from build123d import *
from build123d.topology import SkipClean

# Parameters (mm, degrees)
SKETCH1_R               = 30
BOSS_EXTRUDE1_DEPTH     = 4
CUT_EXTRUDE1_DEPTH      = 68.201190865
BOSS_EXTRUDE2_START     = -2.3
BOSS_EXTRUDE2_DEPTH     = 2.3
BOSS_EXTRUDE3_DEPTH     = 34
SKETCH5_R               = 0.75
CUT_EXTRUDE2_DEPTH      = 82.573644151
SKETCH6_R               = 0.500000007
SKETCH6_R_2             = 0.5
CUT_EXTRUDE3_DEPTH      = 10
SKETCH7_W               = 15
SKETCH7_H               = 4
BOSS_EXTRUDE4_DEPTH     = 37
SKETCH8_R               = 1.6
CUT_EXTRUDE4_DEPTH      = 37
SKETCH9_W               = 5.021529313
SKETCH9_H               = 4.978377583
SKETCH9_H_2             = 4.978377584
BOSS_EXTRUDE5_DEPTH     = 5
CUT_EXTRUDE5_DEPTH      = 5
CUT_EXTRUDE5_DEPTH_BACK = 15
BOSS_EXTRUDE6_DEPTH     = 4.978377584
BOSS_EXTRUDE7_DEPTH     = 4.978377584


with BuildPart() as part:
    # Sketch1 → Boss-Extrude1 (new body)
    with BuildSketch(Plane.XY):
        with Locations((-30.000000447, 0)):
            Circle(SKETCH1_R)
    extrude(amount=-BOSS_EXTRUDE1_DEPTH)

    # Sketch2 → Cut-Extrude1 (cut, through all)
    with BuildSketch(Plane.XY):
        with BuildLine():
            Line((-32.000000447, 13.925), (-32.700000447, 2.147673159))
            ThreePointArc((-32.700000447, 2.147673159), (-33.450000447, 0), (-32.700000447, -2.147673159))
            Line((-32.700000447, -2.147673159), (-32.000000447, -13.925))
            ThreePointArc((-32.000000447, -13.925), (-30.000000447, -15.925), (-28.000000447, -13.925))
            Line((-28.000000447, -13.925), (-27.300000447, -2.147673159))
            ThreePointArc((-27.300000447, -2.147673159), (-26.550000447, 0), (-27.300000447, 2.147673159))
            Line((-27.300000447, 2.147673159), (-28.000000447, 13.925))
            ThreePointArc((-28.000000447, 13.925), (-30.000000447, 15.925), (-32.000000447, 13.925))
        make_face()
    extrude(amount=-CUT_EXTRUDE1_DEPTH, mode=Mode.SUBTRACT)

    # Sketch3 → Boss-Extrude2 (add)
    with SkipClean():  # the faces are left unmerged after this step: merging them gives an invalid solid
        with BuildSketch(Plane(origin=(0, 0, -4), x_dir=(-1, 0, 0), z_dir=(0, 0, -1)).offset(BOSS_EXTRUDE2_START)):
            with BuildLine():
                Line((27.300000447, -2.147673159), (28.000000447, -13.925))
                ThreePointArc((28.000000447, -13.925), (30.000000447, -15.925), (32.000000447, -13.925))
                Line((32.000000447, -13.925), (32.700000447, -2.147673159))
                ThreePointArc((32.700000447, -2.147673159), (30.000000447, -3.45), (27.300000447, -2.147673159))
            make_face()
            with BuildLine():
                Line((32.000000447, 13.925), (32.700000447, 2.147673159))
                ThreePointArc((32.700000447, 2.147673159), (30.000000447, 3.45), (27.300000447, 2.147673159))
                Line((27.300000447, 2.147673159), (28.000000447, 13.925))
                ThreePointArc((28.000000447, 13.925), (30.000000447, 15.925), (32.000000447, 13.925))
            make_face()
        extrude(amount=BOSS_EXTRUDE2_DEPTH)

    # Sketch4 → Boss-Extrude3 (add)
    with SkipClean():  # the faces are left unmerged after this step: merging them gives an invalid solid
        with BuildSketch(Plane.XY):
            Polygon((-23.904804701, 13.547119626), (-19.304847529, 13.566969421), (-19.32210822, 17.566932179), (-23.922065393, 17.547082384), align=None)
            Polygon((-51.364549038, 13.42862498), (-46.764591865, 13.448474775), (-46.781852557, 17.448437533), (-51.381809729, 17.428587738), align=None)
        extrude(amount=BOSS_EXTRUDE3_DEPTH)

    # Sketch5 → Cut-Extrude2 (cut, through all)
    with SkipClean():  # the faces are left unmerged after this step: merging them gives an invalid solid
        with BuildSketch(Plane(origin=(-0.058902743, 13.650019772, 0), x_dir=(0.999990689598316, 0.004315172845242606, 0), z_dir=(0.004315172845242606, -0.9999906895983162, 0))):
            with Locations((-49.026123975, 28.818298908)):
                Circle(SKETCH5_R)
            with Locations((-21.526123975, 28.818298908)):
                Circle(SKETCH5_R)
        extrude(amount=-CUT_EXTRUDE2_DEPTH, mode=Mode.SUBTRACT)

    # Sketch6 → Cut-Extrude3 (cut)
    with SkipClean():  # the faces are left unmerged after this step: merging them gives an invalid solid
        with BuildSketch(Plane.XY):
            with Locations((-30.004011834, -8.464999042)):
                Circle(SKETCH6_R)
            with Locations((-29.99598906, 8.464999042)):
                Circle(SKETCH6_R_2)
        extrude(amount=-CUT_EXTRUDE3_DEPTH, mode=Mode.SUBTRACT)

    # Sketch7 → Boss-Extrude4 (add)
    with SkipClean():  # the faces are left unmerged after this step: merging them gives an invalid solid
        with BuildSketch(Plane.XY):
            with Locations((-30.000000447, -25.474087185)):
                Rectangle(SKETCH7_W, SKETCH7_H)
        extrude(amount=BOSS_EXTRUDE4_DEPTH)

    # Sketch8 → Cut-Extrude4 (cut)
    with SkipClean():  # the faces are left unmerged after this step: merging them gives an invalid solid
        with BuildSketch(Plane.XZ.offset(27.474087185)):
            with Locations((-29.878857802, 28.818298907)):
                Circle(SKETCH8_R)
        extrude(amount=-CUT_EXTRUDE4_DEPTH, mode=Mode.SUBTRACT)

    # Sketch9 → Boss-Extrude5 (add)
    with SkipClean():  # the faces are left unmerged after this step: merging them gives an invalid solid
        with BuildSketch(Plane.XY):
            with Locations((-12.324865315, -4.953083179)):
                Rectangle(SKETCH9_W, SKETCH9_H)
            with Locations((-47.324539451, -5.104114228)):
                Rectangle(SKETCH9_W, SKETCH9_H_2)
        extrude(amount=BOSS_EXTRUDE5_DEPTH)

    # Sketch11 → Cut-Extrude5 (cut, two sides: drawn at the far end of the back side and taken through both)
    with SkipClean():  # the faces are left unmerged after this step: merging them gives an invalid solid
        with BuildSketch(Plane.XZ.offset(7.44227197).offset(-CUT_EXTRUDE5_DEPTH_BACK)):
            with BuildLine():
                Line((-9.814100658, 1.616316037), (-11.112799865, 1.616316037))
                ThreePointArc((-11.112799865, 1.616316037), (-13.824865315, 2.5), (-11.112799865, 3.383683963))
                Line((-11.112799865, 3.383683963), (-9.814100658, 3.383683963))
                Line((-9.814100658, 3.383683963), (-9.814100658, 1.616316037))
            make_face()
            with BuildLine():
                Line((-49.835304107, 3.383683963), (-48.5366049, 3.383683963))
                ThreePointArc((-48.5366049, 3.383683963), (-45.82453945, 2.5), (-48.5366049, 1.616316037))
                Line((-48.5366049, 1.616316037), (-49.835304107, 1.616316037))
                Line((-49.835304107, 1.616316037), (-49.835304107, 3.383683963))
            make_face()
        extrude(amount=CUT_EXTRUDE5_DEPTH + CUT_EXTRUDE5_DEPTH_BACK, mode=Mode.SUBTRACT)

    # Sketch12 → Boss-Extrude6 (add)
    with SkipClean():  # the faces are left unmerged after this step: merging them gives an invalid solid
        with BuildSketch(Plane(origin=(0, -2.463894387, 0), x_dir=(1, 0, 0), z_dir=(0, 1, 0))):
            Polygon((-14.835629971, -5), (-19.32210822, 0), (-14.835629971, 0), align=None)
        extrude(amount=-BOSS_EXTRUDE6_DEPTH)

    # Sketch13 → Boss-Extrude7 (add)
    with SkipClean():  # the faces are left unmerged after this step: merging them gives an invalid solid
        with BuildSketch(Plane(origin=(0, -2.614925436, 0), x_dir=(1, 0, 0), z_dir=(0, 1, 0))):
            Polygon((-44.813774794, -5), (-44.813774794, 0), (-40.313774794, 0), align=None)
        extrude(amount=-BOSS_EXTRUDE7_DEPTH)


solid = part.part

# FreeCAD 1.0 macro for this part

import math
import FreeCAD as App
import Part
import Sketcher
from FreeCAD import Vector
Q = App.Units.Quantity


def add_polygon(sketch, points):
    """Adds a closed chain of lines whose ends are joined by coincident constraints."""
    first, n = sketch.GeometryCount, len(points)
    for a, b in zip(points, points[1:] + points[:1]):
        sketch.addGeometry(Part.LineSegment(App.Vector(*a, 0), App.Vector(*b, 0)), False)
    for i in range(n):
        sketch.addConstraint(Sketcher.Constraint("Coincident", first + i, 2, first + (i + 1) % n, 1))

doc = App.newDocument("Part")
body = doc.addObject("PartDesign::Body", "Body")

sketch1 = body.newObject("Sketcher::SketchObject", "Sketch")
sketch1.AttachmentSupport = (doc.getObject("XY_Plane"), [""])
sketch1.MapMode = "FlatFace"
sketch1.addGeometry(Part.Circle(Vector(-30, 0, 0), Vector(0, 0, 1), 30), False)
sketch1.addConstraint(Sketcher.Constraint("PointOnObject", 0, 3, -1))
sketch1.addConstraint(Sketcher.Constraint("Diameter", 0, Q("60 mm")))
sketch1.addConstraint(Sketcher.Constraint("DistanceX", 0, 3, -1, 1, Q("30 mm")))
pad1 = body.newObject("PartDesign::Pad", "Pad")
pad1.Profile = sketch1
pad1.Length = 4
pad1.Reversed = True

sketch2 = body.newObject("Sketcher::SketchObject", "Sketch001")
sketch2.AttachmentSupport = (doc.getObject("XY_Plane"), [""])
sketch2.MapMode = "FlatFace"
sketch2.addGeometry(Part.LineSegment(Vector(-32, 13.9, 0), Vector(-32.7, 2.1, 0)), False)
sketch2.addGeometry(Part.ArcOfCircle(Part.Circle(Vector(-30, 0, 0), Vector(0, 0, 1), 3.4), math.radians(142), math.radians(218)), False)
sketch2.addGeometry(Part.LineSegment(Vector(-32.7, -2.1, 0), Vector(-32, -13.9, 0)), False)
sketch2.addGeometry(Part.ArcOfCircle(Part.Circle(Vector(-30, -13.9, 0), Vector(0, 0, 1), 2), math.radians(180), math.radians(360)), False)
sketch2.addGeometry(Part.LineSegment(Vector(-28, -13.9, 0), Vector(-27.3, -2.1, 0)), False)
sketch2.addGeometry(Part.ArcOfCircle(Part.Circle(Vector(-30, 0, 0), Vector(0, 0, 1), 3.4), math.radians(-38), math.radians(38)), False)
sketch2.addGeometry(Part.LineSegment(Vector(-27.3, 2.1, 0), Vector(-28, 13.9, 0)), False)
sketch2.addGeometry(Part.ArcOfCircle(Part.Circle(Vector(-30, 13.9, 0), Vector(0, 0, 1), 2), math.radians(0), math.radians(180)), False)
sketch2.addConstraint(Sketcher.Constraint("Coincident", 0, 2, 1, 1))
sketch2.addConstraint(Sketcher.Constraint("Coincident", 1, 2, 2, 1))
sketch2.addConstraint(Sketcher.Constraint("Coincident", 2, 2, 3, 1))
sketch2.addConstraint(Sketcher.Constraint("Coincident", 3, 2, 4, 1))
sketch2.addConstraint(Sketcher.Constraint("Coincident", 4, 2, 5, 1))
sketch2.addConstraint(Sketcher.Constraint("Coincident", 5, 2, 6, 1))
sketch2.addConstraint(Sketcher.Constraint("Coincident", 6, 2, 7, 1))
sketch2.addConstraint(Sketcher.Constraint("Coincident", 7, 2, 0, 1))
sketch2.addConstraint(Sketcher.Constraint("Coincident", 5, 3, 1, 3))
sketch2.addConstraint(Sketcher.Constraint("Equal", 1, 5))
sketch2.addConstraint(Sketcher.Constraint("Equal", 3, 7))
sketch2.addConstraint(Sketcher.Constraint("Symmetric", 3, 3, 7, 3, -1))
sketch2.addConstraint(Sketcher.Constraint("Symmetric", 0, 2, 1, 2, -1))
sketch2.addConstraint(Sketcher.Constraint("Parallel", 0, 4))
sketch2.addConstraint(Sketcher.Constraint("Parallel", 2, 6))
sketch2.addConstraint(Sketcher.Constraint("Horizontal", 3, 3, 2, 2))
sketch2.addConstraint(Sketcher.Constraint("Horizontal", 2, 2, 3, 2))
sketch2.addConstraint(Sketcher.Constraint("Horizontal", 1, 2, 4, 2))
sketch2.addConstraint(Sketcher.Constraint("Horizontal", 0, 2, 5, 2))
sketch2.addConstraint(Sketcher.Constraint("Horizontal", 7, 3, 6, 2))
sketch2.addConstraint(Sketcher.Constraint("Radius", 3, Q("2 mm")))
sketch2.addConstraint(Sketcher.Constraint("Radius", 1, Q("3.45 mm")))
sketch2.addConstraint(Sketcher.Constraint("DistanceX", 1, 3, -1, 1, Q("30 mm")))
sketch2.addConstraint(Sketcher.Constraint("DistanceX", 0, 2, -1, 1, Q("32.7 mm")))
sketch2.addConstraint(Sketcher.Constraint("DistanceY", 3, 3, 7, 3, Q("27.85 mm")))
pocket1 = body.newObject("PartDesign::Pocket", "Pocket")
pocket1.Profile = sketch2
pocket1.Type = "ThroughAll"

sketch3 = body.newObject("Sketcher::SketchObject", "Sketch002")
sketch3.AttachmentSupport = (doc.getObject("XY_Plane"), [""])
sketch3.MapMode = "FlatFace"
sketch3.AttachmentOffset = App.Placement(Vector(0, 0, -1.7), App.Rotation())
sketch3.addGeometry(Part.LineSegment(Vector(-27.3, -2.1, 0), Vector(-28, -13.9, 0)), False)
sketch3.addGeometry(Part.ArcOfCircle(Part.Circle(Vector(-30, -13.9, 0), Vector(0, 0, 1), 2), math.radians(180), math.radians(360)), False)
sketch3.addGeometry(Part.LineSegment(Vector(-32, -13.9, 0), Vector(-32.7, -2.1, 0)), False)
sketch3.addGeometry(Part.ArcOfCircle(Part.Circle(Vector(-30, 0, 0), Vector(0, 0, 1), 3.4), math.radians(-142), math.radians(-38)), False)
sketch3.addGeometry(Part.LineSegment(Vector(-32.7, 2.1, 0), Vector(-32, 13.9, 0)), False)
sketch3.addGeometry(Part.ArcOfCircle(Part.Circle(Vector(-30, 13.9, 0), Vector(0, 0, 1), 2), math.radians(0), math.radians(180)), False)
sketch3.addGeometry(Part.LineSegment(Vector(-28, 13.9, 0), Vector(-27.3, 2.1, 0)), False)
sketch3.addGeometry(Part.ArcOfCircle(Part.Circle(Vector(-30, 0, 0), Vector(0, 0, 1), 3.4), math.radians(38), math.radians(142)), False)
sketch3.addConstraint(Sketcher.Constraint("Coincident", 0, 2, 1, 2))
sketch3.addConstraint(Sketcher.Constraint("Coincident", 1, 1, 2, 1))
sketch3.addConstraint(Sketcher.Constraint("Coincident", 2, 2, 3, 1))
sketch3.addConstraint(Sketcher.Constraint("Coincident", 3, 2, 0, 1))
sketch3.addConstraint(Sketcher.Constraint("Coincident", 4, 2, 5, 2))
sketch3.addConstraint(Sketcher.Constraint("Coincident", 5, 1, 6, 1))
sketch3.addConstraint(Sketcher.Constraint("Coincident", 6, 2, 7, 1))
sketch3.addConstraint(Sketcher.Constraint("Coincident", 7, 2, 4, 1))
sketch3.addConstraint(Sketcher.Constraint("Coincident", 7, 3, 3, 3))
sketch3.addConstraint(Sketcher.Constraint("Equal", 1, 5))
sketch3.addConstraint(Sketcher.Constraint("Equal", 3, 7))
sketch3.addConstraint(Sketcher.Constraint("Symmetric", 1, 3, 5, 3, -1))
sketch3.addConstraint(Sketcher.Constraint("Symmetric", 3, 2, 6, 2, -1))
sketch3.addConstraint(Sketcher.Constraint("Parallel", 0, 4))
sketch3.addConstraint(Sketcher.Constraint("Parallel", 2, 6))
sketch3.addConstraint(Sketcher.Constraint("Horizontal", 1, 3, 0, 2))
sketch3.addConstraint(Sketcher.Constraint("Horizontal", 0, 2, 1, 1))
sketch3.addConstraint(Sketcher.Constraint("Horizontal", 2, 2, 3, 2))
sketch3.addConstraint(Sketcher.Constraint("Horizontal", 5, 3, 4, 2))
sketch3.addConstraint(Sketcher.Constraint("Horizontal", 4, 2, 5, 1))
sketch3.addConstraint(Sketcher.Constraint("Radius", 1, Q("2 mm")))
sketch3.addConstraint(Sketcher.Constraint("Radius", 3, Q("3.45 mm")))
sketch3.addConstraint(Sketcher.Constraint("DistanceX", 1, 3, -1, 1, Q("30 mm")))
sketch3.addConstraint(Sketcher.Constraint("DistanceX", 2, 2, -1, 1, Q("32.7 mm")))
sketch3.addConstraint(Sketcher.Constraint("DistanceY", 1, 3, 5, 3, Q("27.85 mm")))
pad2 = body.newObject("PartDesign::Pad", "Pad001")
pad2.Profile = sketch3
pad2.Length = 2.3
pad2.Reversed = True

sketch4 = body.newObject("Sketcher::SketchObject", "Sketch003")
sketch4.AttachmentSupport = (doc.getObject("XY_Plane"), [""])
sketch4.MapMode = "FlatFace"
add_polygon(sketch4, [(-23.9, 13.5), (-19.3, 13.6), (-19.3, 17.6), (-23.9, 17.5)])
add_polygon(sketch4, [(-51.4, 13.4), (-46.8, 13.4), (-46.8, 17.4), (-51.4, 17.4)])
sketch4.addConstraint(Sketcher.Constraint("Perpendicular", 0, 1))
sketch4.addConstraint(Sketcher.Constraint("Perpendicular", 1, 2))
sketch4.addConstraint(Sketcher.Constraint("Perpendicular", 2, 3))
sketch4.addConstraint(Sketcher.Constraint("Perpendicular", 3, 4))
sketch4.addConstraint(Sketcher.Constraint("Perpendicular", 4, 5))
sketch4.addConstraint(Sketcher.Constraint("Perpendicular", 5, 6))
sketch4.addConstraint(Sketcher.Constraint("Perpendicular", 6, 7))
sketch4.addConstraint(Sketcher.Constraint("Equal", 2, 4))
sketch4.addConstraint(Sketcher.Constraint("Equal", 3, 5))
sketch4.addConstraint(Sketcher.Constraint("Distance", 1, Q("4 mm")))
sketch4.addConstraint(Sketcher.Constraint("Distance", 0, Q("4.6 mm")))
sketch4.addConstraint(Sketcher.Constraint("DistanceX", 6, 2, 1, 2, Q("32.059702 mm")))
sketch4.addConstraint(Sketcher.Constraint("DistanceY", -1, 1, 0, 2, Q("13.566969 mm")))
sketch4.addConstraint(Sketcher.Constraint("DistanceX", 1, 2, -1, 1, Q("19.322108 mm")))
sketch4.addConstraint(Sketcher.Constraint("DistanceY", -1, 1, 3, 2, Q("13.54712 mm")))
sketch4.addConstraint(Sketcher.Constraint("DistanceY", 0, 2, 5, 2, Q("3.881468 mm")))
pad3 = body.newObject("PartDesign::Pad", "Pad002")
pad3.Profile = sketch4
pad3.Length = 34

sketch5 = body.newObject("Sketcher::SketchObject", "Sketch004")
sketch5.Placement = App.Placement(Vector(-0.058903, 13.65002, 0), App.Rotation(Vector(0.99999069, 0.004315173, 0), Vector(0, 0, 1.000000001), Vector(0.004315173, -0.99999069, 0), "ZXY"))
sketch5.addGeometry(Part.Circle(Vector(-49, 28.8, 0), Vector(0, 0, 1), 0.8), False)
sketch5.addGeometry(Part.Circle(Vector(-21.5, 28.8, 0), Vector(0, 0, 1), 0.8), False)
sketch5.addConstraint(Sketcher.Constraint("Equal", 0, 1))
sketch5.addConstraint(Sketcher.Constraint("Horizontal", 0, 3, 1, 3))
sketch5.addConstraint(Sketcher.Constraint("Diameter", 0, Q("1.5 mm")))
sketch5.addConstraint(Sketcher.Constraint("DistanceX", 0, 3, 1, 3, Q("27.5 mm")))
sketch5.addConstraint(Sketcher.Constraint("DistanceY", -1, 1, 0, 3, Q("28.818299 mm")))
sketch5.addConstraint(Sketcher.Constraint("DistanceX", 0, 3, -1, 1, Q("49.026124 mm")))
pocket2 = body.newObject("PartDesign::Pocket", "Pocket001")
pocket2.Profile = sketch5
pocket2.Type = "ThroughAll"

sketch6 = body.newObject("Sketcher::SketchObject", "Sketch005")
sketch6.AttachmentSupport = (doc.getObject("XY_Plane"), [""])
sketch6.MapMode = "FlatFace"
sketch6.addGeometry(Part.Circle(Vector(-30, -8.5, 0), Vector(0, 0, 1), 0.5), False)
sketch6.addGeometry(Part.Circle(Vector(-30, 8.5, 0), Vector(0, 0, 1), 0.5), False)
sketch6.addConstraint(Sketcher.Constraint("Equal", 0, 1))
sketch6.addConstraint(Sketcher.Constraint("Diameter", 0, Q("1 mm")))
sketch6.addConstraint(Sketcher.Constraint("DistanceY", 0, 3, 1, 3, Q("16.929998 mm")))
sketch6.addConstraint(Sketcher.Constraint("DistanceY", 0, 3, -1, 1, Q("8.464999 mm")))
sketch6.addConstraint(Sketcher.Constraint("DistanceX", 0, 3, -1, 1, Q("30.004012 mm")))
sketch6.addConstraint(Sketcher.Constraint("DistanceX", 1, 3, -1, 1, Q("29.995989 mm")))
pocket3 = body.newObject("PartDesign::Pocket", "Pocket002")
pocket3.Profile = sketch6
pocket3.Length = 10

sketch7 = body.newObject("Sketcher::SketchObject", "Sketch006")
sketch7.AttachmentSupport = (doc.getObject("XY_Plane"), [""])
sketch7.MapMode = "FlatFace"
add_polygon(sketch7, [(-37.5, -23.5), (-37.5, -27.5), (-22.5, -27.5), (-22.5, -23.5)])
sketch7.addConstraint(Sketcher.Constraint("Vertical", 0))
sketch7.addConstraint(Sketcher.Constraint("Horizontal", 1))
sketch7.addConstraint(Sketcher.Constraint("Vertical", 2))
sketch7.addConstraint(Sketcher.Constraint("Horizontal", 3))
sketch7.addConstraint(Sketcher.Constraint("DistanceX", 1, 1, 1, 2, Q("15 mm")))
sketch7.addConstraint(Sketcher.Constraint("DistanceY", 0, 2, 0, 1, Q("4 mm")))
sketch7.addConstraint(Sketcher.Constraint("DistanceX", 0, 2, -1, 1, Q("37.5 mm")))
sketch7.addConstraint(Sketcher.Constraint("DistanceY", 0, 2, -1, 1, Q("27.474087 mm")))
pad4 = body.newObject("PartDesign::Pad", "Pad003")
pad4.Profile = sketch7
pad4.Length = 37

sketch8 = body.newObject("Sketcher::SketchObject", "Sketch007")
sketch8.AttachmentSupport = (doc.getObject("XZ_Plane"), [""])
sketch8.MapMode = "FlatFace"
sketch8.AttachmentOffset = App.Placement(Vector(0, 0, 27.474087), App.Rotation())
sketch8.addGeometry(Part.Circle(Vector(-29.9, 28.8, 0), Vector(0, 0, 1), 1.6), False)
sketch8.addConstraint(Sketcher.Constraint("Diameter", 0, Q("3.2 mm")))
sketch8.addConstraint(Sketcher.Constraint("DistanceY", -1, 1, 0, 3, Q("28.818299 mm")))
sketch8.addConstraint(Sketcher.Constraint("DistanceX", 0, 3, -1, 1, Q("29.878858 mm")))
pocket4 = body.newObject("PartDesign::Pocket", "Pocket003")
pocket4.Profile = sketch8
pocket4.Length = 37

sketch9 = body.newObject("Sketcher::SketchObject", "Sketch008")
sketch9.AttachmentSupport = (doc.getObject("XY_Plane"), [""])
sketch9.MapMode = "FlatFace"
add_polygon(sketch9, [(-14.8, -2.5), (-14.8, -7.4), (-9.8, -7.4), (-9.8, -2.5)])
add_polygon(sketch9, [(-49.8, -2.6), (-49.8, -7.6), (-44.8, -7.6), (-44.8, -2.6)])
sketch9.addConstraint(Sketcher.Constraint("Vertical", 0))
sketch9.addConstraint(Sketcher.Constraint("Horizontal", 1))
sketch9.addConstraint(Sketcher.Constraint("Vertical", 2))
sketch9.addConstraint(Sketcher.Constraint("Horizontal", 3))
sketch9.addConstraint(Sketcher.Constraint("Vertical", 4))
sketch9.addConstraint(Sketcher.Constraint("Horizontal", 5))
sketch9.addConstraint(Sketcher.Constraint("Vertical", 6))
sketch9.addConstraint(Sketcher.Constraint("Horizontal", 7))
sketch9.addConstraint(Sketcher.Constraint("Equal", 3, 5))
sketch9.addConstraint(Sketcher.Constraint("Equal", 2, 4))
sketch9.addConstraint(Sketcher.Constraint("DistanceX", 1, 1, 1, 2, Q("5.021529 mm")))
sketch9.addConstraint(Sketcher.Constraint("DistanceX", 1, 2, -1, 1, Q("9.814101 mm")))
sketch9.addConstraint(Sketcher.Constraint("DistanceY", 0, 2, 0, 1, Q("4.978378 mm")))
sketch9.addConstraint(Sketcher.Constraint("DistanceY", 0, 2, -1, 1, Q("7.442272 mm")))
sketch9.addConstraint(Sketcher.Constraint("DistanceY", 4, 2, 0, 2, Q("0.151031 mm")))
sketch9.addConstraint(Sketcher.Constraint("DistanceX", 4, 2, -1, 1, Q("49.835304 mm")))
pad5 = body.newObject("PartDesign::Pad", "Pad004")
pad5.Profile = sketch9
pad5.Length = 5

sketch10 = body.newObject("Sketcher::SketchObject", "Sketch009")
sketch10.AttachmentSupport = (doc.getObject("XZ_Plane"), [""])
sketch10.MapMode = "FlatFace"
sketch10.AttachmentOffset = App.Placement(Vector(0, 0, 7.442272), App.Rotation())
sketch10.addGeometry(Part.LineSegment(Vector(-11.1, 1.6, 0), Vector(-9.8, 1.6, 0)), False)
sketch10.addGeometry(Part.LineSegment(Vector(-9.8, 1.6, 0), Vector(-9.8, 3.4, 0)), False)
sketch10.addGeometry(Part.LineSegment(Vector(-9.8, 3.4, 0), Vector(-11.1, 3.4, 0)), False)
sketch10.addGeometry(Part.ArcOfCircle(Part.Circle(Vector(-12.3, 2.5, 0), Vector(0, 0, 1), 1.5), math.radians(36), math.radians(324)), False)
sketch10.addGeometry(Part.LineSegment(Vector(-48.5, 3.4, 0), Vector(-49.8, 3.4, 0)), False)
sketch10.addGeometry(Part.LineSegment(Vector(-49.8, 3.4, 0), Vector(-49.8, 1.6, 0)), False)
sketch10.addGeometry(Part.LineSegment(Vector(-49.8, 1.6, 0), Vector(-48.5, 1.6, 0)), False)
sketch10.addGeometry(Part.ArcOfCircle(Part.Circle(Vector(-47.3, 2.5, 0), Vector(0, 0, 1), 1.5), math.radians(-144), math.radians(144)), False)
sketch10.addConstraint(Sketcher.Constraint("Coincident", 0, 2, 1, 1))
sketch10.addConstraint(Sketcher.Constraint("Coincident", 1, 2, 2, 1))
sketch10.addConstraint(Sketcher.Constraint("Coincident", 2, 2, 3, 1))
sketch10.addConstraint(Sketcher.Constraint("Coincident", 3, 2, 0, 1))
sketch10.addConstraint(Sketcher.Constraint("Coincident", 4, 2, 5, 1))
sketch10.addConstraint(Sketcher.Constraint("Coincident", 5, 2, 6, 1))
sketch10.addConstraint(Sketcher.Constraint("Coincident", 6, 2, 7, 1))
sketch10.addConstraint(Sketcher.Constraint("Coincident", 7, 2, 4, 1))
sketch10.addConstraint(Sketcher.Constraint("Horizontal", 0))
sketch10.addConstraint(Sketcher.Constraint("Vertical", 1))
sketch10.addConstraint(Sketcher.Constraint("Horizontal", 2))
sketch10.addConstraint(Sketcher.Constraint("Horizontal", 4))
sketch10.addConstraint(Sketcher.Constraint("Vertical", 5))
sketch10.addConstraint(Sketcher.Constraint("Horizontal", 6))
sketch10.addConstraint(Sketcher.Constraint("Equal", 3, 7))
sketch10.addConstraint(Sketcher.Constraint("Horizontal", 3, 3, 7, 3))
sketch10.addConstraint(Sketcher.Constraint("Horizontal", 2, 2, 4, 2))
sketch10.addConstraint(Sketcher.Constraint("Horizontal", 3, 2, 5, 2))
sketch10.addConstraint(Sketcher.Constraint("Vertical", 2, 2, 3, 2))
sketch10.addConstraint(Sketcher.Constraint("Equal", 2, 4))
sketch10.addConstraint(Sketcher.Constraint("Radius", 3, Q("1.5 mm")))
sketch10.addConstraint(Sketcher.Constraint("DistanceY", -1, 1, 3, 3, Q("2.5 mm")))
sketch10.addConstraint(Sketcher.Constraint("DistanceX", 0, 1, 0, 2, Q("1.298699 mm")))
sketch10.addConstraint(Sketcher.Constraint("DistanceX", 0, 2, -1, 1, Q("9.814101 mm")))
sketch10.addConstraint(Sketcher.Constraint("DistanceY", 1, 1, 1, 2, Q("1.767368 mm")))
sketch10.addConstraint(Sketcher.Constraint("DistanceX", 7, 3, -1, 1, Q("47.324539 mm")))
pocket5 = body.newObject("PartDesign::Pocket", "Pocket004")
pocket5.Profile = sketch10
pocket5.Type = "TwoLengths"
pocket5.Length = 5
pocket5.Length2 = 15
pocket5.Reversed = True

sketch11 = body.newObject("Sketcher::SketchObject", "Sketch010")
sketch11.AttachmentSupport = (doc.getObject("XZ_Plane"), [""])
sketch11.MapMode = "FlatFace"
sketch11.AttachmentOffset = App.Placement(Vector(0, 0, 2.463894), App.Rotation())
add_polygon(sketch11, [(-19.3, 0), (-14.8, 5), (-14.8, 0)])
sketch11.addConstraint(Sketcher.Constraint("Vertical", 1))
sketch11.addConstraint(Sketcher.Constraint("Horizontal", 2))
sketch11.addConstraint(Sketcher.Constraint("PointOnObject", 1, 2, -1))
sketch11.addConstraint(Sketcher.Constraint("DistanceY", 1, 2, 1, 1, Q("5 mm")))
sketch11.addConstraint(Sketcher.Constraint("DistanceX", 2, 2, 2, 1, Q("4.486478 mm")))
sketch11.addConstraint(Sketcher.Constraint("DistanceX", 0, 2, -1, 1, Q("14.83563 mm")))
pad6 = body.newObject("PartDesign::Pad", "Pad005")
pad6.Profile = sketch11
pad6.Length = 4.978378

sketch12 = body.newObject("Sketcher::SketchObject", "Sketch011")
sketch12.AttachmentSupport = (doc.getObject("XZ_Plane"), [""])
sketch12.MapMode = "FlatFace"
sketch12.AttachmentOffset = App.Placement(Vector(0, 0, 2.614925), App.Rotation())
add_polygon(sketch12, [(-44.8, 0), (-44.8, 5), (-40.3, 0)])
sketch12.addConstraint(Sketcher.Constraint("Vertical", 0))
sketch12.addConstraint(Sketcher.Constraint("Horizontal", 2))
sketch12.addConstraint(Sketcher.Constraint("PointOnObject", 1, 2, -1))
sketch12.addConstraint(Sketcher.Constraint("DistanceY", 0, 1, 0, 2, Q("5 mm")))
sketch12.addConstraint(Sketcher.Constraint("DistanceX", 2, 2, 2, 1, Q("4.5 mm")))
sketch12.addConstraint(Sketcher.Constraint("DistanceX", 0, 2, -1, 1, Q("44.813775 mm")))
pad7 = body.newObject("PartDesign::Pad", "Pad006")
pad7.Profile = sketch12
pad7.Length = 4.978378

doc.recompute()
